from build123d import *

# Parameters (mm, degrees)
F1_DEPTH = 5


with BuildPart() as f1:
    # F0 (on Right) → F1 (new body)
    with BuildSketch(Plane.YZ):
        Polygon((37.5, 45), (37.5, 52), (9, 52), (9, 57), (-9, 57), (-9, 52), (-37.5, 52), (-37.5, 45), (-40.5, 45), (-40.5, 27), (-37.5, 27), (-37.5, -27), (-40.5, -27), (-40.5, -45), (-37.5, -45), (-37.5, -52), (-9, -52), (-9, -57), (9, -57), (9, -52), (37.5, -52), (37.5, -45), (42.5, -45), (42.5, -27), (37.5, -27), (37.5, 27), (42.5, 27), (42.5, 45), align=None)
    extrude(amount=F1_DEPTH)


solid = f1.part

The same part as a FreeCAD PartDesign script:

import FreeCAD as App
import Part
import Sketcher

V = App.Vector

doc = App.newDocument("Part")
body = doc.addObject("PartDesign::Body", "Body")

# Sketch on YZ plane
sketch1 = body.newObject("Sketcher::SketchObject", "Sketch")
sketch1.AttachmentSupport = (doc.getObject("YZ_Plane"), [""])
sketch1.MapMode = "FlatFace"
sketch1.addGeometry(Part.LineSegment(V(37.5, 45, 0), V(37.5, 52, 0)), False)
sketch1.addGeometry(Part.LineSegment(V(37.5, 52, 0), V(9, 52, 0)), False)
sketch1.addGeometry(Part.LineSegment(V(9, 52, 0), V(9, 57, 0)), False)
sketch1.addGeometry(Part.LineSegment(V(9, 57, 0), V(-9, 57, 0)), False)
sketch1.addGeometry(Part.LineSegment(V(-9, 57, 0), V(-9, 52, 0)), False)
sketch1.addGeometry(Part.LineSegment(V(-9, 52, 0), V(-37.5, 52, 0)), False)
sketch1.addGeometry(Part.LineSegment(V(-37.5, 52, 0), V(-37.5, 45, 0)), False)
sketch1.addGeometry(Part.LineSegment(V(-37.5, 45, 0), V(-40.5, 45, 0)), False)
sketch1.addGeometry(Part.LineSegment(V(-40.5, 45, 0), V(-40.5, 27, 0)), False)
sketch1.addGeometry(Part.LineSegment(V(-40.5, 27, 0), V(-37.5, 27, 0)), False)
sketch1.addGeometry(Part.LineSegment(V(-37.5, 27, 0), V(-37.5, -27, 0)), False)
sketch1.addGeometry(Part.LineSegment(V(-37.5, -27, 0), V(-40.5, -27, 0)), False)
sketch1.addGeometry(Part.LineSegment(V(-40.5, -27, 0), V(-40.5, -45, 0)), False)
sketch1.addGeometry(Part.LineSegment(V(-40.5, -45, 0), V(-37.5, -45, 0)), False)
sketch1.addGeometry(Part.LineSegment(V(-37.5, -45, 0), V(-37.5, -52, 0)), False)
sketch1.addGeometry(Part.LineSegment(V(-37.5, -52, 0), V(-9, -52, 0)), False)
sketch1.addGeometry(Part.LineSegment(V(-9, -52, 0), V(-9, -57, 0)), False)
sketch1.addGeometry(Part.LineSegment(V(-9, -57, 0), V(9, -57, 0)), False)
sketch1.addGeometry(Part.LineSegment(V(9, -57, 0), V(9, -52, 0)), False)
sketch1.addGeometry(Part.LineSegment(V(9, -52, 0), V(37.5, -52, 0)), False)
sketch1.addGeometry(Part.LineSegment(V(37.5, -52, 0), V(37.5, -45, 0)), False)
sketch1.addGeometry(Part.LineSegment(V(37.5, -45, 0), V(42.5, -45, 0)), False)
sketch1.addGeometry(Part.LineSegment(V(42.5, -45, 0), V(42.5, -27, 0)), False)
sketch1.addGeometry(Part.LineSegment(V(42.5, -27, 0), V(37.5, -27, 0)), False)
sketch1.addGeometry(Part.LineSegment(V(37.5, -27, 0), V(37.5, 27, 0)), False)
sketch1.addGeometry(Part.LineSegment(V(37.5, 27, 0), V(42.5, 27, 0)), False)
sketch1.addGeometry(Part.LineSegment(V(42.5, 27, 0), V(42.5, 45, 0)), False)
sketch1.addGeometry(Part.LineSegment(V(42.5, 45, 0), V(37.5, 45, 0)), False)
sketch1.addConstraint(Sketcher.Constraint("Coincident", 0, 2, 1, 1))
sketch1.addConstraint(Sketcher.Constraint("Coincident", 1, 2, 2, 1))
sketch1.addConstraint(Sketcher.Constraint("Coincident", 2, 2, 3, 1))
sketch1.addConstraint(Sketcher.Constraint("Coincident", 3, 2, 4, 1))
sketch1.addConstraint(Sketcher.Constraint("Coincident", 4, 2, 5, 1))
sketch1.addConstraint(Sketcher.Constraint("Coincident", 5, 2, 6, 1))
sketch1.addConstraint(Sketcher.Constraint("Coincident", 6, 2, 7, 1))
sketch1.addConstraint(Sketcher.Constraint("Coincident", 7, 2, 8, 1))
sketch1.addConstraint(Sketcher.Constraint("Coincident", 8, 2, 9, 1))
sketch1.addConstraint(Sketcher.Constraint("Coincident", 9, 2, 10, 1))
sketch1.addConstraint(Sketcher.Constraint("Coincident", 10, 2, 11, 1))
sketch1.addConstraint(Sketcher.Constraint("Coincident", 11, 2, 12, 1))
sketch1.addConstraint(Sketcher.Constraint("Coincident", 12, 2, 13, 1))
sketch1.addConstraint(Sketcher.Constraint("Coincident", 13, 2, 14, 1))
sketch1.addConstraint(Sketcher.Constraint("Coincident", 14, 2, 15, 1))
sketch1.addConstraint(Sketcher.Constraint("Coincident", 15, 2, 16, 1))
sketch1.addConstraint(Sketcher.Constraint("Coincident", 16, 2, 17, 1))
sketch1.addConstraint(Sketcher.Constraint("Coincident", 17, 2, 18, 1))
sketch1.addConstraint(Sketcher.Constraint("Coincident", 18, 2, 19, 1))
sketch1.addConstraint(Sketcher.Constraint("Coincident", 19, 2, 20, 1))
sketch1.addConstraint(Sketcher.Constraint("Coincident", 20, 2, 21, 1))
sketch1.addConstraint(Sketcher.Constraint("Coincident", 21, 2, 22, 1))
sketch1.addConstraint(Sketcher.Constraint("Coincident", 22, 2, 23, 1))
sketch1.addConstraint(Sketcher.Constraint("Coincident", 23, 2, 24, 1))
sketch1.addConstraint(Sketcher.Constraint("Coincident", 24, 2, 25, 1))
sketch1.addConstraint(Sketcher.Constraint("Coincident", 25, 2, 26, 1))
sketch1.addConstraint(Sketcher.Constraint("Coincident", 26, 2, 27, 1))
sketch1.addConstraint(Sketcher.Constraint("Coincident", 27, 2, 0, 1))
sketch1.addConstraint(Sketcher.Constraint("Vertical", 0))
sketch1.addConstraint(Sketcher.Constraint("Horizontal", 1))
sketch1.addConstraint(Sketcher.Constraint("Vertical", 2))
sketch1.addConstraint(Sketcher.Constraint("Horizontal", 3))
sketch1.addConstraint(Sketcher.Constraint("Vertical", 4))
sketch1.addConstraint(Sketcher.Constraint("Horizontal", 5))
sketch1.addConstraint(Sketcher.Constraint("Vertical", 6))
sketch1.addConstraint(Sketcher.Constraint("Horizontal", 7))
sketch1.addConstraint(Sketcher.Constraint("Vertical", 8))
sketch1.addConstraint(Sketcher.Constraint("Horizontal", 9))
sketch1.addConstraint(Sketcher.Constraint("Vertical", 10))
sketch1.addConstraint(Sketcher.Constraint("Horizontal", 11))
sketch1.addConstraint(Sketcher.Constraint("Vertical", 12))
sketch1.addConstraint(Sketcher.Constraint("Horizontal", 13))
sketch1.addConstraint(Sketcher.Constraint("Vertical", 14))
sketch1.addConstraint(Sketcher.Constraint("Horizontal", 15))
sketch1.addConstraint(Sketcher.Constraint("Vertical", 16))
sketch1.addConstraint(Sketcher.Constraint("Horizontal", 17))
sketch1.addConstraint(Sketcher.Constraint("Vertical", 18))
sketch1.addConstraint(Sketcher.Constraint("Horizontal", 19))
sketch1.addConstraint(Sketcher.Constraint("Vertical", 20))
sketch1.addConstraint(Sketcher.Constraint("Horizontal", 21))
sketch1.addConstraint(Sketcher.Constraint("Vertical", 22))
sketch1.addConstraint(Sketcher.Constraint("Horizontal", 23))
sketch1.addConstraint(Sketcher.Constraint("Vertical", 24))
sketch1.addConstraint(Sketcher.Constraint("Horizontal", 25))
sketch1.addConstraint(Sketcher.Constraint("Vertical", 26))
sketch1.addConstraint(Sketcher.Constraint("Horizontal", 27))
sketch1.addConstraint(Sketcher.Constraint("Symmetric", 0, 2, 14, 2, -1, 1))
sketch1.addConstraint(Sketcher.Constraint("Symmetric", 2, 2, 16, 2, -1, 1))
sketch1.addConstraint(Sketcher.Constraint("Symmetric", 4, 2, 18, 2, -1, 1))
sketch1.addConstraint(Sketcher.Constraint("Symmetric", 6, 2, 20, 2, -1, 1))
sketch1.addConstraint(Sketcher.Constraint("Symmetric", 9, 2, 23, 2, -1, 1))
sketch1.addConstraint(Sketcher.Constraint("Symmetric", 1, 2, 4, 2, -2))
sketch1.addConstraint(Sketcher.Constraint("Symmetric", 13, 2, 20, 2, -2))
sketch1.addConstraint(Sketcher.Constraint("Symmetric", 8, 2, 11, 2, -1))
sketch1.addConstraint(Sketcher.Constraint("Symmetric", 22, 2, 25, 2, -1))
sketch1.addConstraint(Sketcher.Constraint("Horizontal", 7, 2, 26, 2))
sketch1.addConstraint(Sketcher.Constraint("Vertical", 6, 2, 9, 2))
sketch1.addConstraint(Sketcher.Constraint("Equal", 27, 2))
sketch1.addConstraint(Sketcher.Constraint("Equal", 17, 8))
sketch1.addConstraint(Sketcher.Constraint("DistanceX", 3, 2, 3, 1, 18.0))
sketch1.addConstraint(Sketcher.Constraint("DistanceX", 7, 2, 7, 1, 3.0))
sketch1.addConstraint(Sketcher.Constraint("DistanceX", 21, 1, 21, 2, 5.0))
sketch1.addConstraint(Sketcher.Constraint("DistanceY", 0, 1, 0, 2, 7.0))
sketch1.addConstraint(Sketcher.Constraint("DistanceY", 10, 2, 10, 1, 54.0))
sketch1.addConstraint(Sketcher.Constraint("DistanceX", 1, 2, 1, 1, 28.5))
pad1 = body.newObject("PartDesign::Pad", "Pad")
pad1.Profile = sketch1
pad1.Length = 5

doc.recompute()
